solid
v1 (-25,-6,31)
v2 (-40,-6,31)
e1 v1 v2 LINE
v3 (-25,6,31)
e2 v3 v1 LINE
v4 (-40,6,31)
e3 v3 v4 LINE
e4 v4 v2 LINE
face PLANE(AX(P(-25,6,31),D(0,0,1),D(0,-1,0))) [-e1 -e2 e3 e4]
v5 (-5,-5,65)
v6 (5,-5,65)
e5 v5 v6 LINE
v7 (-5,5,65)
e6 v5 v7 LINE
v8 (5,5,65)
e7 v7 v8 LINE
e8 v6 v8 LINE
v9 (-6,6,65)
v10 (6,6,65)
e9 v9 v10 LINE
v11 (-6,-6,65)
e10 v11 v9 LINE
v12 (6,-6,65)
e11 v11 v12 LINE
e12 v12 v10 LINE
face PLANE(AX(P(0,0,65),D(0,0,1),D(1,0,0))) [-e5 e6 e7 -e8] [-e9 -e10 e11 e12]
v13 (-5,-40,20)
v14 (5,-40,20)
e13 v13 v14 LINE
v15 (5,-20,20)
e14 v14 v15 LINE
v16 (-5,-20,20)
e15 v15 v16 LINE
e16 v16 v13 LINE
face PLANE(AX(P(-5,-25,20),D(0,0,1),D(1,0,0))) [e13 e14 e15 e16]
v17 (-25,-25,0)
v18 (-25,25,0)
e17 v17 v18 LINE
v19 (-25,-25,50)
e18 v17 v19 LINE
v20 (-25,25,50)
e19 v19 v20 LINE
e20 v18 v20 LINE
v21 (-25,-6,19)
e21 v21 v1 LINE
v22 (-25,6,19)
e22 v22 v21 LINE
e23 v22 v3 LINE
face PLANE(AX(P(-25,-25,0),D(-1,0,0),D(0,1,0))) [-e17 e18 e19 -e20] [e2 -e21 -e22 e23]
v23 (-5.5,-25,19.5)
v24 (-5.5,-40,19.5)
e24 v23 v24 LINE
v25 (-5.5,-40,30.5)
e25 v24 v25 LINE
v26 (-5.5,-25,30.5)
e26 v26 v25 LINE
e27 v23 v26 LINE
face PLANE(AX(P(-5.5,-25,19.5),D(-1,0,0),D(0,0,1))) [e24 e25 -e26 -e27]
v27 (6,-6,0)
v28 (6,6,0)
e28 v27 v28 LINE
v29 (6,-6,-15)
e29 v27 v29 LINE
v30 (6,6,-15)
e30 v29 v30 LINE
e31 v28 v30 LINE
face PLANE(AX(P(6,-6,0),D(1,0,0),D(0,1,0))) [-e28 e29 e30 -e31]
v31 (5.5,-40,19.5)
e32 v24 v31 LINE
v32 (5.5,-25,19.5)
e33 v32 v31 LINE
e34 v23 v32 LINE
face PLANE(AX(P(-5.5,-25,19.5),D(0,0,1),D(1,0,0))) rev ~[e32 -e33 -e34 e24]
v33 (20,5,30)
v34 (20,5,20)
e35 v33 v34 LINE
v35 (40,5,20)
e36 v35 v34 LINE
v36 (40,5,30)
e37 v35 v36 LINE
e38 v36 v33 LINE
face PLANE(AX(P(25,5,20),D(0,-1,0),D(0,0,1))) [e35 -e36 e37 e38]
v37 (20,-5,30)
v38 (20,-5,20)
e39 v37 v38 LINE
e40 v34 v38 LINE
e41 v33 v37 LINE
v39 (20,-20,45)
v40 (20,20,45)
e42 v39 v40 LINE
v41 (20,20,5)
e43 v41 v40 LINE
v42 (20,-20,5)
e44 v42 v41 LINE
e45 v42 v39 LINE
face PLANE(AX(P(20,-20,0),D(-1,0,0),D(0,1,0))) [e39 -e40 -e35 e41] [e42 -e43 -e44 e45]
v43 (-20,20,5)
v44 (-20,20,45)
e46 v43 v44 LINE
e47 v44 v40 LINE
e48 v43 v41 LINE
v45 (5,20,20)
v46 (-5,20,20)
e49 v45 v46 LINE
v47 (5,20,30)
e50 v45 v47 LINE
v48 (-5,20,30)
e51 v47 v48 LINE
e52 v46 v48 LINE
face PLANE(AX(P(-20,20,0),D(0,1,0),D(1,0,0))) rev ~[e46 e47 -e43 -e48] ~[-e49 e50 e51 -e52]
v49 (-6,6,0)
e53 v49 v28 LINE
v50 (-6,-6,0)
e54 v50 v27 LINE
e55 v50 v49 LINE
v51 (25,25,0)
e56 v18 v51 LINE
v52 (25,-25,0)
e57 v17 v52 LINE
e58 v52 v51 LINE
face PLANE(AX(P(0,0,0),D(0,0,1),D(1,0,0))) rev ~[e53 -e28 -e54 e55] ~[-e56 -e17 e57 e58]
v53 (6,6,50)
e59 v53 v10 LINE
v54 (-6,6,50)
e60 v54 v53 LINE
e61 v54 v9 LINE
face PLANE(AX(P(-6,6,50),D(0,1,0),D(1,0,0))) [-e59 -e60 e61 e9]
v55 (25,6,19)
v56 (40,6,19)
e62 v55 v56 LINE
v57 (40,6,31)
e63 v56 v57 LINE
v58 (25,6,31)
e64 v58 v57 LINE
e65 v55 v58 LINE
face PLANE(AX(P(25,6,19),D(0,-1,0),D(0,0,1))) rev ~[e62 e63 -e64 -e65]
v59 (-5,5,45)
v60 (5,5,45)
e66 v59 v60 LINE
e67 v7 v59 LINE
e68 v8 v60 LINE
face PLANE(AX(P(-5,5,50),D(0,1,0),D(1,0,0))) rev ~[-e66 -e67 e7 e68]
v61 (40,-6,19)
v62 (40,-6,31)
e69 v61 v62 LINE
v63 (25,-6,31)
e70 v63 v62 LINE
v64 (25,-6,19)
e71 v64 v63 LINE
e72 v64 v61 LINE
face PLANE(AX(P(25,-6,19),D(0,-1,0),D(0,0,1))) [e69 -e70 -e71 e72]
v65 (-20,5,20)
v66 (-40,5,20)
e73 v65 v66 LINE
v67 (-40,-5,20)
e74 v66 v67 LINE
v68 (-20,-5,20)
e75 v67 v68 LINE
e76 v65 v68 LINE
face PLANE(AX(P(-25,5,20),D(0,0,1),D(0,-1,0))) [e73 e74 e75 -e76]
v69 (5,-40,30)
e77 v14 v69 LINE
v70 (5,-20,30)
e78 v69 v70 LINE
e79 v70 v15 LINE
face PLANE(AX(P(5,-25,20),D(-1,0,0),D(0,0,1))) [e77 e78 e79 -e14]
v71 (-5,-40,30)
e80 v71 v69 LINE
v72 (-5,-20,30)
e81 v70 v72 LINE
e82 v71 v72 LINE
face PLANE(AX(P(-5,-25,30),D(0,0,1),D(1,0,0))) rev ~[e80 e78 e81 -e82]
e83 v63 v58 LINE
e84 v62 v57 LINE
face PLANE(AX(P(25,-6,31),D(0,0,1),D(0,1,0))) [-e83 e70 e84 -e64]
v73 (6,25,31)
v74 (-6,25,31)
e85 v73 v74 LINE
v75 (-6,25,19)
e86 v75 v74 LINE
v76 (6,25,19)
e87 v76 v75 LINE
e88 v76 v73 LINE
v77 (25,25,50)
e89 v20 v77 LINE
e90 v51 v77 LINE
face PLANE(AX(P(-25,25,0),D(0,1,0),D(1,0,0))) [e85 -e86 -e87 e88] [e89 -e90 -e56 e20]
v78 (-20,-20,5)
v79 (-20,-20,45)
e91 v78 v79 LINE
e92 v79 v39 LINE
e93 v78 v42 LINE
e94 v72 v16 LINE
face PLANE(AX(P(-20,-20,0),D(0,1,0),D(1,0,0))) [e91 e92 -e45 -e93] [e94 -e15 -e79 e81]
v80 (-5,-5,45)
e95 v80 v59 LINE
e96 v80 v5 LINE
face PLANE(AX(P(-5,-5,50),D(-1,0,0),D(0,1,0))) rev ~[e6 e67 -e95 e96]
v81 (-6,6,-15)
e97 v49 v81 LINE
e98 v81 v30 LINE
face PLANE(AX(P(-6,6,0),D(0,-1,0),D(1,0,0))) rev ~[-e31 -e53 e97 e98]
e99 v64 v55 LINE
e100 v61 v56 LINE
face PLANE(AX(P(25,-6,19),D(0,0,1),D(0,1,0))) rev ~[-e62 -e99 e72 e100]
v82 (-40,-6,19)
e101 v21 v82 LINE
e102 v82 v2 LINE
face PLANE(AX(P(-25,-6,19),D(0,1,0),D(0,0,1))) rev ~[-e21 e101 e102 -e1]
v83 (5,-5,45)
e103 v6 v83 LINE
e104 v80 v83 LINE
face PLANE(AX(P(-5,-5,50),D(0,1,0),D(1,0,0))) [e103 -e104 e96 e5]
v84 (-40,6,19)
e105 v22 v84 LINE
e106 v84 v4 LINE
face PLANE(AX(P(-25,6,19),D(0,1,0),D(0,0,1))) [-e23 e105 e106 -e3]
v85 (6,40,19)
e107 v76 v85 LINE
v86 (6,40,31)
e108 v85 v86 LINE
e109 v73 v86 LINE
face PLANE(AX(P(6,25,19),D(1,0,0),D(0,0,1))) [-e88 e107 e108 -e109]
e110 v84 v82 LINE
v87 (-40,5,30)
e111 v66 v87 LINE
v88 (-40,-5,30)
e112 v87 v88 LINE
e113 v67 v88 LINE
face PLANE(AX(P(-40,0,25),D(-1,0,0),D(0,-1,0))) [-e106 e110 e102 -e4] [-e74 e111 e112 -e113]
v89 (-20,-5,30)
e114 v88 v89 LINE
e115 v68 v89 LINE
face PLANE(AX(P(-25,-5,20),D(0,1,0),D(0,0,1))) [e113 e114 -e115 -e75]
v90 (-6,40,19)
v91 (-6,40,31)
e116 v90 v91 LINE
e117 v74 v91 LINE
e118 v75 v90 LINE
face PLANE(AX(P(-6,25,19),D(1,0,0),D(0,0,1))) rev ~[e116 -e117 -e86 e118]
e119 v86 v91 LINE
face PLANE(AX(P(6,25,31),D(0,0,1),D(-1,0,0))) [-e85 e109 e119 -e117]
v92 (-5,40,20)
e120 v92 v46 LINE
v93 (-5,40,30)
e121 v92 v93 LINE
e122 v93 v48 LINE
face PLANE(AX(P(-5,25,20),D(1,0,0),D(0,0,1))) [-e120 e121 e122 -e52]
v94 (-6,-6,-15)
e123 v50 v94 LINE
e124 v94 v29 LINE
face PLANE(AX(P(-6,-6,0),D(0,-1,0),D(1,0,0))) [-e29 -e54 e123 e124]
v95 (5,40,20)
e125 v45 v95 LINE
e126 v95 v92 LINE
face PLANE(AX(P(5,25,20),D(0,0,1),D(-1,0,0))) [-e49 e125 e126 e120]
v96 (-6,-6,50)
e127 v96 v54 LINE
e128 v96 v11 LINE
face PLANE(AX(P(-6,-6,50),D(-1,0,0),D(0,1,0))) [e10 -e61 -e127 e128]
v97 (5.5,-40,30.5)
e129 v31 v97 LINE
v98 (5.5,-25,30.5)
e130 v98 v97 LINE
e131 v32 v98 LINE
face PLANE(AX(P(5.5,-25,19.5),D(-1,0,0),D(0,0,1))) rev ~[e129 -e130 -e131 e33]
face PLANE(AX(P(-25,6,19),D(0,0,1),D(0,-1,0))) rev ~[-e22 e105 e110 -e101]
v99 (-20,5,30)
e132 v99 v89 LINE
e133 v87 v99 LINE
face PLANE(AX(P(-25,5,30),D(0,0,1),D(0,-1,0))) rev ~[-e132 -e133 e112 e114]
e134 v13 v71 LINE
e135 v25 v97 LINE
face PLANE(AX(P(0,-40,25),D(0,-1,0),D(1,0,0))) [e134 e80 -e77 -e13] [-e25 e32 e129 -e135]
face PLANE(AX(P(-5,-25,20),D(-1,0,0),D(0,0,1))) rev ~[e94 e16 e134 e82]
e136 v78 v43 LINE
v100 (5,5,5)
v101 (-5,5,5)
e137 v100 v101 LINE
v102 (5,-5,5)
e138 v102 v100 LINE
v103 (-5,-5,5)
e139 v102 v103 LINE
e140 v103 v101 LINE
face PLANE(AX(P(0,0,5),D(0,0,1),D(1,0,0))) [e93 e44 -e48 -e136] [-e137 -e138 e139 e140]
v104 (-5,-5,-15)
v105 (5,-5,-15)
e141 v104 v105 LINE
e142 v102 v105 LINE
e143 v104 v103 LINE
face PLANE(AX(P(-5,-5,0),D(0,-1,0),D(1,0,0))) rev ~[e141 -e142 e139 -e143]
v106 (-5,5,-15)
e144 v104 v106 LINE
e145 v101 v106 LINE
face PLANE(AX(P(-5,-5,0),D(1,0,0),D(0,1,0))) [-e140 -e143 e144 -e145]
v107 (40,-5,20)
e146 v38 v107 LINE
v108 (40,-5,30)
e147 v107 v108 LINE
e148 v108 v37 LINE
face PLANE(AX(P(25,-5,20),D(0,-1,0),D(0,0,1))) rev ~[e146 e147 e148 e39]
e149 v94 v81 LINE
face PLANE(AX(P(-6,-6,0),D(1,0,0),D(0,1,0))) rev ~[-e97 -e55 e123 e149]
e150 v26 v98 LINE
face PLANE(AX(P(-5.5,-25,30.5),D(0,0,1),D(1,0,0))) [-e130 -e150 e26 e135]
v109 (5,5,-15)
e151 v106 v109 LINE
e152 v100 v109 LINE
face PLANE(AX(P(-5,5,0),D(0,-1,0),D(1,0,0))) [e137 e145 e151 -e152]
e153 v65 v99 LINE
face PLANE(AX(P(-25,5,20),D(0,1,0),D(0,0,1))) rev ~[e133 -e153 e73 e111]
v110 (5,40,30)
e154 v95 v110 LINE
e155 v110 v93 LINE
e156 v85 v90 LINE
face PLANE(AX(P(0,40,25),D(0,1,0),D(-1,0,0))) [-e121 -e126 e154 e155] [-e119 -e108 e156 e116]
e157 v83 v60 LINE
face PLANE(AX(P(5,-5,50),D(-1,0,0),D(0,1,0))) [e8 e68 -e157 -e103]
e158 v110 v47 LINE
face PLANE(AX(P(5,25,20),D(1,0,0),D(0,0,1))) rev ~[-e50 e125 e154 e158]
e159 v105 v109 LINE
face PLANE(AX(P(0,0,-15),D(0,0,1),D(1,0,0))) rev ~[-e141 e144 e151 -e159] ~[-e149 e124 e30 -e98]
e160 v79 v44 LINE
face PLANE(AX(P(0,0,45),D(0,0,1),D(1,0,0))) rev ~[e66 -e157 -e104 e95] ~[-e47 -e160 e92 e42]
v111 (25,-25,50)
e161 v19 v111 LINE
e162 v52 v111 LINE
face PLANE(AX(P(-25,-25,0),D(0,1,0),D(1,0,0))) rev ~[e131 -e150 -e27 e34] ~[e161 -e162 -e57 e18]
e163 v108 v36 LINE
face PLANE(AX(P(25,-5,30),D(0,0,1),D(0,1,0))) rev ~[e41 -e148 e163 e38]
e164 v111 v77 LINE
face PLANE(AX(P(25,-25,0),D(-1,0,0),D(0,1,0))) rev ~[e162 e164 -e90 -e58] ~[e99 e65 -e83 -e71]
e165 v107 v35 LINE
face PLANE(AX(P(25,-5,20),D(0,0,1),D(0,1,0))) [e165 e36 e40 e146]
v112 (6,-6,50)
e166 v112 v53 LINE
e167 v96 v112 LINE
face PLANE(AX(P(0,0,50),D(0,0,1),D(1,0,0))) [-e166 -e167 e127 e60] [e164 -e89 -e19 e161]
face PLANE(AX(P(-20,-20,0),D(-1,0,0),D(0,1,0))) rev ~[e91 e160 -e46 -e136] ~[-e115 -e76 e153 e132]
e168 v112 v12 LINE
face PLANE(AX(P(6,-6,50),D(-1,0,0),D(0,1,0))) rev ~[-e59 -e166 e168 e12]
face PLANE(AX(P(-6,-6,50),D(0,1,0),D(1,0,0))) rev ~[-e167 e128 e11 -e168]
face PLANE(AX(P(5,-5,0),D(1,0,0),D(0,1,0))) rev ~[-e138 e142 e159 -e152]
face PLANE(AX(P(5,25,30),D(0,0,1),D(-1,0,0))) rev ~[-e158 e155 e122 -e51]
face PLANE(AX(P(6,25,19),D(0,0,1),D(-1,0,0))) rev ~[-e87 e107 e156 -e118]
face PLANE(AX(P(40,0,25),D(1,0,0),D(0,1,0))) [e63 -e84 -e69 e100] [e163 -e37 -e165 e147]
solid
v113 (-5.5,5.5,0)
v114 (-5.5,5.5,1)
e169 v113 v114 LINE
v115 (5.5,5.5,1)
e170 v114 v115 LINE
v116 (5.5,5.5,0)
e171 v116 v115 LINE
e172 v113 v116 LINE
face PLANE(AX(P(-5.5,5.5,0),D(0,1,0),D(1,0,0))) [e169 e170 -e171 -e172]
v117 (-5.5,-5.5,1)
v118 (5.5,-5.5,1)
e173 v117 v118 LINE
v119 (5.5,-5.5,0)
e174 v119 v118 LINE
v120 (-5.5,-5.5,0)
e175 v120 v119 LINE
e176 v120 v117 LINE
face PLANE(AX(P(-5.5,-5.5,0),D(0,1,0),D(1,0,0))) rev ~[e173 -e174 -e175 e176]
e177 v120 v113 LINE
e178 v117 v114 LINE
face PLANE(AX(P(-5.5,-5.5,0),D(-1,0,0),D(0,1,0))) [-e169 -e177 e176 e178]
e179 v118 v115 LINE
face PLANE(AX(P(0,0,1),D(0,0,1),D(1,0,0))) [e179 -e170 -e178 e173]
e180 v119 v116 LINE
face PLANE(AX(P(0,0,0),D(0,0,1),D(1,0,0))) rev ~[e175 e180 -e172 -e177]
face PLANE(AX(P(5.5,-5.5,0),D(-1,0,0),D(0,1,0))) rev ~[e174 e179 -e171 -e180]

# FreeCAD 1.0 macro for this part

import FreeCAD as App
import Part
import Sketcher

V = App.Vector

doc = App.newDocument("Part")
body = doc.addObject("PartDesign::Body", "Body")

sketch1 = body.newObject("Sketcher::SketchObject", "Sketch")
sketch1.AttachmentSupport = (doc.getObject("XY_Plane"), [""])
sketch1.MapMode = "FlatFace"
sketch1.addGeometry(Part.LineSegment(V(-25, 25, 0), V(-25, -25, 0)), False)
sketch1.addGeometry(Part.LineSegment(V(-25, -25, 0), V(25, -25, 0)), False)
sketch1.addGeometry(Part.LineSegment(V(25, -25, 0), V(25, 25, 0)), False)
sketch1.addGeometry(Part.LineSegment(V(25, 25, 0), V(-25, 25, 0)), False)
sketch1.addGeometry(Part.LineSegment(V(20, -20, 0), V(-20, -20, 0)), False)
sketch1.addGeometry(Part.LineSegment(V(-20, -20, 0), V(-20, 20, 0)), False)
sketch1.addGeometry(Part.LineSegment(V(-20, 20, 0), V(20, 20, 0)), False)
sketch1.addGeometry(Part.LineSegment(V(20, 20, 0), V(20, -20, 0)), False)
sketch1.addConstraint(Sketcher.Constraint("Coincident", 0, 2, 1, 1))
sketch1.addConstraint(Sketcher.Constraint("Coincident", 1, 2, 2, 1))
sketch1.addConstraint(Sketcher.Constraint("Coincident", 2, 2, 3, 1))
sketch1.addConstraint(Sketcher.Constraint("Coincident", 3, 2, 0, 1))
sketch1.addConstraint(Sketcher.Constraint("Coincident", 4, 2, 5, 1))
sketch1.addConstraint(Sketcher.Constraint("Coincident", 5, 2, 6, 1))
sketch1.addConstraint(Sketcher.Constraint("Coincident", 6, 2, 7, 1))
sketch1.addConstraint(Sketcher.Constraint("Coincident", 7, 2, 4, 1))
sketch1.addConstraint(Sketcher.Constraint("Vertical", 0))
sketch1.addConstraint(Sketcher.Constraint("Horizontal", 1))
sketch1.addConstraint(Sketcher.Constraint("Vertical", 2))
sketch1.addConstraint(Sketcher.Constraint("Horizontal", 3))
sketch1.addConstraint(Sketcher.Constraint("Horizontal", 4))
sketch1.addConstraint(Sketcher.Constraint("Vertical", 5))
sketch1.addConstraint(Sketcher.Constraint("Horizontal", 6))
sketch1.addConstraint(Sketcher.Constraint("Vertical", 7))
sketch1.addConstraint(Sketcher.Constraint("Symmetric", 0, 2, 2, 2, -1, 1))
sketch1.addConstraint(Sketcher.Constraint("Symmetric", 4, 2, 6, 2, -1, 1))
sketch1.addConstraint(Sketcher.Constraint("Equal", 3, 0))
sketch1.addConstraint(Sketcher.Constraint("Equal", 6, 5))
sketch1.addConstraint(Sketcher.Constraint("DistanceX", 1, 1, 1, 2, 50.0))
sketch1.addConstraint(Sketcher.Constraint("DistanceX", 4, 2, 4, 1, 40.0))
pad1 = body.newObject("PartDesign::Pad", "Pad")
pad1.Profile = sketch1
pad1.Length = 50

sketch2 = body.newObject("Sketcher::SketchObject", "Sketch001")
sketch2.AttachmentSupport = (doc.getObject("XY_Plane"), [""])
sketch2.MapMode = "FlatFace"
sketch2.addGeometry(Part.LineSegment(V(-20, 20, 0), V(-20, -20, 0)), False)
sketch2.addGeometry(Part.LineSegment(V(-20, -20, 0), V(20, -20, 0)), False)
sketch2.addGeometry(Part.LineSegment(V(20, -20, 0), V(20, 20, 0)), False)
sketch2.addGeometry(Part.LineSegment(V(20, 20, 0), V(-20, 20, 0)), False)
sketch2.addConstraint(Sketcher.Constraint("Coincident", 0, 2, 1, 1))
sketch2.addConstraint(Sketcher.Constraint("Coincident", 1, 2, 2, 1))
sketch2.addConstraint(Sketcher.Constraint("Coincident", 2, 2, 3, 1))
sketch2.addConstraint(Sketcher.Constraint("Coincident", 3, 2, 0, 1))
sketch2.addConstraint(Sketcher.Constraint("Vertical", 0))
sketch2.addConstraint(Sketcher.Constraint("Horizontal", 1))
sketch2.addConstraint(Sketcher.Constraint("Vertical", 2))
sketch2.addConstraint(Sketcher.Constraint("Horizontal", 3))
sketch2.addConstraint(Sketcher.Constraint("Symmetric", 0, 2, 2, 2, -1, 1))
sketch2.addConstraint(Sketcher.Constraint("Equal", 3, 0))
sketch2.addConstraint(Sketcher.Constraint("DistanceX", 1, 1, 1, 2, 40.0))
pad2 = body.newObject("PartDesign::Pad", "Pad001")
pad2.Profile = sketch2
pad2.Length = 5

sketch3 = body.newObject("Sketcher::SketchObject", "Sketch002")
sketch3.AttachmentSupport = (doc.getObject("XY_Plane"), [""])
sketch3.MapMode = "FlatFace"
sketch3.AttachmentOffset = App.Placement(V(0, 0, 50), App.Rotation())
sketch3.addGeometry(Part.LineSegment(V(-20, 20, 0), V(-20, -20, 0)), False)
sketch3.addGeometry(Part.LineSegment(V(-20, -20, 0), V(20, -20, 0)), False)
sketch3.addGeometry(Part.LineSegment(V(20, -20, 0), V(20, 20, 0)), False)
sketch3.addGeometry(Part.LineSegment(V(20, 20, 0), V(-20, 20, 0)), False)
sketch3.addConstraint(Sketcher.Constraint("Coincident", 0, 2, 1, 1))
sketch3.addConstraint(Sketcher.Constraint("Coincident", 1, 2, 2, 1))
sketch3.addConstraint(Sketcher.Constraint("Coincident", 2, 2, 3, 1))
sketch3.addConstraint(Sketcher.Constraint("Coincident", 3, 2, 0, 1))
sketch3.addConstraint(Sketcher.Constraint("Vertical", 0))
sketch3.addConstraint(Sketcher.Constraint("Horizontal", 1))
sketch3.addConstraint(Sketcher.Constraint("Vertical", 2))
sketch3.addConstraint(Sketcher.Constraint("Horizontal", 3))
sketch3.addConstraint(Sketcher.Constraint("Symmetric", 0, 2, 2, 2, -1, 1))
sketch3.addConstraint(Sketcher.Constraint("Equal", 3, 0))
sketch3.addConstraint(Sketcher.Constraint("DistanceX", 1, 1, 1, 2, 40.0))
pad3 = body.newObject("PartDesign::Pad", "Pad002")
pad3.Profile = sketch3
pad3.Length = 5
pad3.Reversed = True

sketch4 = body.newObject("Sketcher::SketchObject", "Sketch003")
sketch4.AttachmentSupport = (doc.getObject("XY_Plane"), [""])
sketch4.MapMode = "FlatFace"
sketch4.AttachmentOffset = App.Placement(V(0, 0, 50), App.Rotation())
sketch4.addGeometry(Part.LineSegment(V(-5, 5, 0), V(-5, -5, 0)), False)
sketch4.addGeometry(Part.LineSegment(V(-5, -5, 0), V(5, -5, 0)), False)
sketch4.addGeometry(Part.LineSegment(V(5, -5, 0), V(5, 5, 0)), False)
sketch4.addGeometry(Part.LineSegment(V(5, 5, 0), V(-5, 5, 0)), False)
sketch4.addConstraint(Sketcher.Constraint("Coincident", 0, 2, 1, 1))
sketch4.addConstraint(Sketcher.Constraint("Coincident", 1, 2, 2, 1))
sketch4.addConstraint(Sketcher.Constraint("Coincident", 2, 2, 3, 1))
sketch4.addConstraint(Sketcher.Constraint("Coincident", 3, 2, 0, 1))
sketch4.addConstraint(Sketcher.Constraint("Vertical", 0))
sketch4.addConstraint(Sketcher.Constraint("Horizontal", 1))
sketch4.addConstraint(Sketcher.Constraint("Vertical", 2))
sketch4.addConstraint(Sketcher.Constraint("Horizontal", 3))
sketch4.addConstraint(Sketcher.Constraint("Symmetric", 0, 2, 2, 2, -1, 1))
sketch4.addConstraint(Sketcher.Constraint("Equal", 3, 0))
sketch4.addConstraint(Sketcher.Constraint("DistanceX", 1, 1, 1, 2, 10.0))
pocket1 = body.newObject("PartDesign::Pocket", "Pocket")
pocket1.Profile = sketch4
pocket1.Length = 10

sketch5 = body.newObject("Sketcher::SketchObject", "Sketch004")
sketch5.AttachmentSupport = (doc.getObject("XZ_Plane"), [""])
sketch5.MapMode = "FlatFace"
sketch5.AttachmentOffset = App.Placement(V(0, 0, 25), App.Rotation())
sketch5.addGeometry(Part.LineSegment(V(-5, 30, 0), V(-5, 20, 0)), False)
sketch5.addGeometry(Part.LineSegment(V(-5, 20, 0), V(5, 20, 0)), False)
sketch5.addGeometry(Part.LineSegment(V(5, 20, 0), V(5, 30, 0)), False)
sketch5.addGeometry(Part.LineSegment(V(5, 30, 0), V(-5, 30, 0)), False)
sketch5.addConstraint(Sketcher.Constraint("Coincident", 0, 2, 1, 1))
sketch5.addConstraint(Sketcher.Constraint("Coincident", 1, 2, 2, 1))
sketch5.addConstraint(Sketcher.Constraint("Coincident", 2, 2, 3, 1))
sketch5.addConstraint(Sketcher.Constraint("Coincident", 3, 2, 0, 1))
sketch5.addConstraint(Sketcher.Constraint("Vertical", 0))
sketch5.addConstraint(Sketcher.Constraint("Horizontal", 1))
sketch5.addConstraint(Sketcher.Constraint("Vertical", 2))
sketch5.addConstraint(Sketcher.Constraint("Horizontal", 3))
sketch5.addConstraint(Sketcher.Constraint("Equal", 3, 0))
sketch5.addConstraint(Sketcher.Constraint("DistanceX", 1, 1, 1, 2, 10.0))
sketch5.addConstraint(Sketcher.Constraint("DistanceX", 0, 2, -1, 1, 5.0))
sketch5.addConstraint(Sketcher.Constraint("DistanceY", -1, 1, 0, 2, 20.0))
pocket2 = body.newObject("PartDesign::Pocket", "Pocket001")
pocket2.Profile = sketch5
pocket2.Length = 10

sketch6 = body.newObject("Sketcher::SketchObject", "Sketch005")
sketch6.AttachmentSupport = (doc.getObject("XY_Plane"), [""])
sketch6.MapMode = "FlatFace"
sketch6.addGeometry(Part.LineSegment(V(-5, -5, 0), V(-5, 5, 0)), False)
sketch6.addGeometry(Part.LineSegment(V(-5, 5, 0), V(5, 5, 0)), False)
sketch6.addGeometry(Part.LineSegment(V(5, 5, 0), V(5, -5, 0)), False)
sketch6.addGeometry(Part.LineSegment(V(5, -5, 0), V(-5, -5, 0)), False)
sketch6.addConstraint(Sketcher.Constraint("Coincident", 0, 2, 1, 1))
sketch6.addConstraint(Sketcher.Constraint("Coincident", 1, 2, 2, 1))
sketch6.addConstraint(Sketcher.Constraint("Coincident", 2, 2, 3, 1))
sketch6.addConstraint(Sketcher.Constraint("Coincident", 3, 2, 0, 1))
sketch6.addConstraint(Sketcher.Constraint("Vertical", 0))
sketch6.addConstraint(Sketcher.Constraint("Horizontal", 1))
sketch6.addConstraint(Sketcher.Constraint("Vertical", 2))
sketch6.addConstraint(Sketcher.Constraint("Horizontal", 3))
sketch6.addConstraint(Sketcher.Constraint("Symmetric", 0, 2, 2, 2, -1, 1))
sketch6.addConstraint(Sketcher.Constraint("Equal", 3, 0))
sketch6.addConstraint(Sketcher.Constraint("DistanceX", 1, 1, 1, 2, 10.0))
pocket3 = body.newObject("PartDesign::Pocket", "Pocket002")
pocket3.Profile = sketch6
pocket3.Length = 10
pocket3.Reversed = True

sketch7 = body.newObject("Sketcher::SketchObject", "Sketch006")
sketch7.AttachmentSupport = (doc.getObject("XZ_Plane"), [""])
sketch7.MapMode = "FlatFace"
sketch7.AttachmentOffset = App.Placement(V(0, 0, -25), App.Rotation())
sketch7.addGeometry(Part.LineSegment(V(5, 30, 0), V(5, 20, 0)), False)
sketch7.addGeometry(Part.LineSegment(V(5, 20, 0), V(-5, 20, 0)), False)
sketch7.addGeometry(Part.LineSegment(V(-5, 20, 0), V(-5, 30, 0)), False)
sketch7.addGeometry(Part.LineSegment(V(-5, 30, 0), V(5, 30, 0)), False)
sketch7.addConstraint(Sketcher.Constraint("Coincident", 0, 2, 1, 1))
sketch7.addConstraint(Sketcher.Constraint("Coincident", 1, 2, 2, 1))
sketch7.addConstraint(Sketcher.Constraint("Coincident", 2, 2, 3, 1))
sketch7.addConstraint(Sketcher.Constraint("Coincident", 3, 2, 0, 1))
sketch7.addConstraint(Sketcher.Constraint("Vertical", 0))
sketch7.addConstraint(Sketcher.Constraint("Horizontal", 1))
sketch7.addConstraint(Sketcher.Constraint("Vertical", 2))
sketch7.addConstraint(Sketcher.Constraint("Horizontal", 3))
sketch7.addConstraint(Sketcher.Constraint("Equal", 3, 0))
sketch7.addConstraint(Sketcher.Constraint("DistanceX", 1, 2, 1, 1, 10.0))
sketch7.addConstraint(Sketcher.Constraint("DistanceX", -1, 1, 0, 2, 5.0))
sketch7.addConstraint(Sketcher.Constraint("DistanceY", -1, 1, 0, 2, 20.0))
pocket4 = body.newObject("PartDesign::Pocket", "Pocket003")
pocket4.Profile = sketch7
pocket4.Length = 10
pocket4.Reversed = True

sketch8 = body.newObject("Sketcher::SketchObject", "Sketch007")
sketch8.AttachmentSupport = (doc.getObject("YZ_Plane"), [""])
sketch8.MapMode = "FlatFace"
sketch8.AttachmentOffset = App.Placement(V(0, 0, -25), App.Rotation())
sketch8.addGeometry(Part.LineSegment(V(5, 30, 0), V(5, 20, 0)), False)
sketch8.addGeometry(Part.LineSegment(V(5, 20, 0), V(-5, 20, 0)), False)
sketch8.addGeometry(Part.LineSegment(V(-5, 20, 0), V(-5, 30, 0)), False)
sketch8.addGeometry(Part.LineSegment(V(-5, 30, 0), V(5, 30, 0)), False)
sketch8.addConstraint(Sketcher.Constraint("Coincident", 0, 2, 1, 1))
sketch8.addConstraint(Sketcher.Constraint("Coincident", 1, 2, 2, 1))
sketch8.addConstraint(Sketcher.Constraint("Coincident", 2, 2, 3, 1))
sketch8.addConstraint(Sketcher.Constraint("Coincident", 3, 2, 0, 1))
sketch8.addConstraint(Sketcher.Constraint("Vertical", 0))
sketch8.addConstraint(Sketcher.Constraint("Horizontal", 1))
sketch8.addConstraint(Sketcher.Constraint("Vertical", 2))
sketch8.addConstraint(Sketcher.Constraint("Horizontal", 3))
sketch8.addConstraint(Sketcher.Constraint("Equal", 3, 0))
sketch8.addConstraint(Sketcher.Constraint("DistanceX", 1, 2, 1, 1, 10.0))
sketch8.addConstraint(Sketcher.Constraint("DistanceX", -1, 1, 0, 2, 5.0))
sketch8.addConstraint(Sketcher.Constraint("DistanceY", -1, 1, 0, 2, 20.0))
pocket5 = body.newObject("PartDesign::Pocket", "Pocket004")
pocket5.Profile = sketch8
pocket5.Length = 10
pocket5.Reversed = True

sketch9 = body.newObject("Sketcher::SketchObject", "Sketch008")
sketch9.AttachmentSupport = (doc.getObject("YZ_Plane"), [""])
sketch9.MapMode = "FlatFace"
sketch9.AttachmentOffset = App.Placement(V(0, 0, 25), App.Rotation())
sketch9.addGeometry(Part.LineSegment(V(-5, 30, 0), V(-5, 20, 0)), False)
sketch9.addGeometry(Part.LineSegment(V(-5, 20, 0), V(5, 20, 0)), False)
sketch9.addGeometry(Part.LineSegment(V(5, 20, 0), V(5, 30, 0)), False)
sketch9.addGeometry(Part.LineSegment(V(5, 30, 0), V(-5, 30, 0)), False)
sketch9.addConstraint(Sketcher.Constraint("Coincident", 0, 2, 1, 1))
sketch9.addConstraint(Sketcher.Constraint("Coincident", 1, 2, 2, 1))
sketch9.addConstraint(Sketcher.Constraint("Coincident", 2, 2, 3, 1))
sketch9.addConstraint(Sketcher.Constraint("Coincident", 3, 2, 0, 1))
sketch9.addConstraint(Sketcher.Constraint("Vertical", 0))
sketch9.addConstraint(Sketcher.Constraint("Horizontal", 1))
sketch9.addConstraint(Sketcher.Constraint("Vertical", 2))
sketch9.addConstraint(Sketcher.Constraint("Horizontal", 3))
sketch9.addConstraint(Sketcher.Constraint("Equal", 3, 0))
sketch9.addConstraint(Sketcher.Constraint("DistanceX", 1, 1, 1, 2, 10.0))
sketch9.addConstraint(Sketcher.Constraint("DistanceX", 0, 2, -1, 1, 5.0))
sketch9.addConstraint(Sketcher.Constraint("DistanceY", -1, 1, 0, 2, 20.0))
pocket6 = body.newObject("PartDesign::Pocket", "Pocket005")
pocket6.Profile = sketch9
pocket6.Length = 10

sketch10 = body.newObject("Sketcher::SketchObject", "Sketch009")
sketch10.AttachmentSupport = (doc.getObject("XZ_Plane"), [""])
sketch10.MapMode = "FlatFace"
sketch10.AttachmentOffset = App.Placement(V(0, 0, 25), App.Rotation())
sketch10.addGeometry(Part.LineSegment(V(-6, 30, 0), V(-6, 20, 0)), False)
sketch10.addGeometry(Part.LineSegment(V(-6, 20, 0), V(6, 20, 0)), False)
sketch10.addGeometry(Part.LineSegment(V(6, 20, 0), V(6, 30, 0)), False)
sketch10.addGeometry(Part.LineSegment(V(6, 30, 0), V(-6, 30, 0)), False)
sketch10.addGeometry(Part.LineSegment(V(5, 20, 0), V(-5, 20, 0)), False)
sketch10.addGeometry(Part.LineSegment(V(-5, 20, 0), V(-5, 30, 0)), False)
sketch10.addGeometry(Part.LineSegment(V(-5, 30, 0), V(5, 30, 0)), False)
sketch10.addGeometry(Part.LineSegment(V(5, 30, 0), V(5, 20, 0)), False)
sketch10.addConstraint(Sketcher.Constraint("Coincident", 0, 2, 1, 1))
sketch10.addConstraint(Sketcher.Constraint("Coincident", 1, 2, 2, 1))
sketch10.addConstraint(Sketcher.Constraint("Coincident", 2, 2, 3, 1))
sketch10.addConstraint(Sketcher.Constraint("Coincident", 3, 2, 0, 1))
sketch10.addConstraint(Sketcher.Constraint("Coincident", 4, 2, 5, 1))
sketch10.addConstraint(Sketcher.Constraint("Coincident", 5, 2, 6, 1))
sketch10.addConstraint(Sketcher.Constraint("Coincident", 6, 2, 7, 1))
sketch10.addConstraint(Sketcher.Constraint("Coincident", 7, 2, 4, 1))
sketch10.addConstraint(Sketcher.Constraint("Vertical", 0))
sketch10.addConstraint(Sketcher.Constraint("Horizontal", 1))
sketch10.addConstraint(Sketcher.Constraint("Vertical", 2))
sketch10.addConstraint(Sketcher.Constraint("Horizontal", 3))
sketch10.addConstraint(Sketcher.Constraint("Horizontal", 4))
sketch10.addConstraint(Sketcher.Constraint("Vertical", 5))
sketch10.addConstraint(Sketcher.Constraint("Horizontal", 6))
sketch10.addConstraint(Sketcher.Constraint("Vertical", 7))
sketch10.addConstraint(Sketcher.Constraint("Equal", 3, 0))
sketch10.addConstraint(Sketcher.Constraint("Equal", 6, 5))
sketch10.addConstraint(Sketcher.Constraint("DistanceX", 1, 1, 1, 2, 11.0))
sketch10.addConstraint(Sketcher.Constraint("DistanceX", 4, 2, 4, 1, 10.0))
sketch10.addConstraint(Sketcher.Constraint("DistanceX", 4, 2, -1, 1, 5.0))
sketch10.addConstraint(Sketcher.Constraint("DistanceY", -1, 1, 4, 2, 20.0))
sketch10.addConstraint(Sketcher.Constraint("DistanceX", 0, 2, -1, 1, 5.5))
sketch10.addConstraint(Sketcher.Constraint("DistanceY", -1, 1, 0, 2, 19.5))
pad4 = body.newObject("PartDesign::Pad", "Pad003")
pad4.Profile = sketch10
pad4.Length = 15

sketch11 = body.newObject("Sketcher::SketchObject", "Sketch010")
sketch11.AttachmentSupport = (doc.getObject("XY_Plane"), [""])
sketch11.MapMode = "FlatFace"
sketch11.AttachmentOffset = App.Placement(V(0, 0, 50), App.Rotation())
sketch11.addGeometry(Part.LineSegment(V(-6, 6, 0), V(-6, -6, 0)), False)
sketch11.addGeometry(Part.LineSegment(V(-6, -6, 0), V(6, -6, 0)), False)
sketch11.addGeometry(Part.LineSegment(V(6, -6, 0), V(6, 6, 0)), False)
sketch11.addGeometry(Part.LineSegment(V(6, 6, 0), V(-6, 6, 0)), False)
sketch11.addGeometry(Part.LineSegment(V(5, -5, 0), V(-5, -5, 0)), False)
sketch11.addGeometry(Part.LineSegment(V(-5, -5, 0), V(-5, 5, 0)), False)
sketch11.addGeometry(Part.LineSegment(V(-5, 5, 0), V(5, 5, 0)), False)
sketch11.addGeometry(Part.LineSegment(V(5, 5, 0), V(5, -5, 0)), False)
sketch11.addConstraint(Sketcher.Constraint("Coincident", 0, 2, 1, 1))
sketch11.addConstraint(Sketcher.Constraint("Coincident", 1, 2, 2, 1))
sketch11.addConstraint(Sketcher.Constraint("Coincident", 2, 2, 3, 1))
sketch11.addConstraint(Sketcher.Constraint("Coincident", 3, 2, 0, 1))
sketch11.addConstraint(Sketcher.Constraint("Coincident", 4, 2, 5, 1))
sketch11.addConstraint(Sketcher.Constraint("Coincident", 5, 2, 6, 1))
sketch11.addConstraint(Sketcher.Constraint("Coincident", 6, 2, 7, 1))
sketch11.addConstraint(Sketcher.Constraint("Coincident", 7, 2, 4, 1))
sketch11.addConstraint(Sketcher.Constraint("Vertical", 0))
sketch11.addConstraint(Sketcher.Constraint("Horizontal", 1))
sketch11.addConstraint(Sketcher.Constraint("Vertical", 2))
sketch11.addConstraint(Sketcher.Constraint("Horizontal", 3))
sketch11.addConstraint(Sketcher.Constraint("Horizontal", 4))
sketch11.addConstraint(Sketcher.Constraint("Vertical", 5))
sketch11.addConstraint(Sketcher.Constraint("Horizontal", 6))
sketch11.addConstraint(Sketcher.Constraint("Vertical", 7))
sketch11.addConstraint(Sketcher.Constraint("Symmetric", 0, 2, 2, 2, -1, 1))
sketch11.addConstraint(Sketcher.Constraint("Symmetric", 4, 2, 6, 2, -1, 1))
sketch11.addConstraint(Sketcher.Constraint("Equal", 3, 0))
sketch11.addConstraint(Sketcher.Constraint("Equal", 6, 5))
sketch11.addConstraint(Sketcher.Constraint("DistanceX", 1, 1, 1, 2, 12.0))
sketch11.addConstraint(Sketcher.Constraint("DistanceX", 4, 2, 4, 1, 10.0))
pad5 = body.newObject("PartDesign::Pad", "Pad004")
pad5.Profile = sketch11
pad5.Length = 15

sketch12 = body.newObject("Sketcher::SketchObject", "Sketch011")
sketch12.AttachmentSupport = (doc.getObject("XZ_Plane"), [""])
sketch12.MapMode = "FlatFace"
sketch12.AttachmentOffset = App.Placement(V(0, 0, -25), App.Rotation())
sketch12.addGeometry(Part.LineSegment(V(6, 31, 0), V(6, 19, 0)), False)
sketch12.addGeometry(Part.LineSegment(V(6, 19, 0), V(-6, 19, 0)), False)
sketch12.addGeometry(Part.LineSegment(V(-6, 19, 0), V(-6, 31, 0)), False)
sketch12.addGeometry(Part.LineSegment(V(-6, 31, 0), V(6, 31, 0)), False)
sketch12.addGeometry(Part.LineSegment(V(-5, 20, 0), V(5, 20, 0)), False)
sketch12.addGeometry(Part.LineSegment(V(5, 20, 0), V(5, 30, 0)), False)
sketch12.addGeometry(Part.LineSegment(V(5, 30, 0), V(-5, 30, 0)), False)
sketch12.addGeometry(Part.LineSegment(V(-5, 30, 0), V(-5, 20, 0)), False)
sketch12.addConstraint(Sketcher.Constraint("Coincident", 0, 2, 1, 1))
sketch12.addConstraint(Sketcher.Constraint("Coincident", 1, 2, 2, 1))
sketch12.addConstraint(Sketcher.Constraint("Coincident", 2, 2, 3, 1))
sketch12.addConstraint(Sketcher.Constraint("Coincident", 3, 2, 0, 1))
sketch12.addConstraint(Sketcher.Constraint("Coincident", 4, 2, 5, 1))
sketch12.addConstraint(Sketcher.Constraint("Coincident", 5, 2, 6, 1))
sketch12.addConstraint(Sketcher.Constraint("Coincident", 6, 2, 7, 1))
sketch12.addConstraint(Sketcher.Constraint("Coincident", 7, 2, 4, 1))
sketch12.addConstraint(Sketcher.Constraint("Vertical", 0))
sketch12.addConstraint(Sketcher.Constraint("Horizontal", 1))
sketch12.addConstraint(Sketcher.Constraint("Vertical", 2))
sketch12.addConstraint(Sketcher.Constraint("Horizontal", 3))
sketch12.addConstraint(Sketcher.Constraint("Horizontal", 4))
sketch12.addConstraint(Sketcher.Constraint("Vertical", 5))
sketch12.addConstraint(Sketcher.Constraint("Horizontal", 6))
sketch12.addConstraint(Sketcher.Constraint("Vertical", 7))
sketch12.addConstraint(Sketcher.Constraint("Equal", 3, 0))
sketch12.addConstraint(Sketcher.Constraint("Equal", 6, 5))
sketch12.addConstraint(Sketcher.Constraint("DistanceX", 1, 2, 1, 1, 12.0))
sketch12.addConstraint(Sketcher.Constraint("DistanceX", 4, 1, 4, 2, 10.0))
sketch12.addConstraint(Sketcher.Constraint("DistanceX", -1, 1, 0, 2, 6.0))
sketch12.addConstraint(Sketcher.Constraint("DistanceY", -1, 1, 0, 2, 19.0))
sketch12.addConstraint(Sketcher.Constraint("DistanceX", -1, 1, 4, 2, 5.0))
sketch12.addConstraint(Sketcher.Constraint("DistanceY", -1, 1, 4, 2, 20.0))
pad6 = body.newObject("PartDesign::Pad", "Pad005")
pad6.Profile = sketch12
pad6.Length = 15
pad6.Reversed = True

sketch13 = body.newObject("Sketcher::SketchObject", "Sketch012")
sketch13.AttachmentSupport = (doc.getObject("XY_Plane"), [""])
sketch13.MapMode = "FlatFace"
sketch13.addGeometry(Part.LineSegment(V(-6, 6, 0), V(-6, -6, 0)), False)
sketch13.addGeometry(Part.LineSegment(V(-6, -6, 0), V(6, -6, 0)), False)
sketch13.addGeometry(Part.LineSegment(V(6, -6, 0), V(6, 6, 0)), False)
sketch13.addGeometry(Part.LineSegment(V(6, 6, 0), V(-6, 6, 0)), False)
sketch13.addGeometry(Part.LineSegment(V(5, -5, 0), V(-5, -5, 0)), False)
sketch13.addGeometry(Part.LineSegment(V(-5, -5, 0), V(-5, 5, 0)), False)
sketch13.addGeometry(Part.LineSegment(V(-5, 5, 0), V(5, 5, 0)), False)
sketch13.addGeometry(Part.LineSegment(V(5, 5, 0), V(5, -5, 0)), False)
sketch13.addConstraint(Sketcher.Constraint("Coincident", 0, 2, 1, 1))
sketch13.addConstraint(Sketcher.Constraint("Coincident", 1, 2, 2, 1))
sketch13.addConstraint(Sketcher.Constraint("Coincident", 2, 2, 3, 1))
sketch13.addConstraint(Sketcher.Constraint("Coincident", 3, 2, 0, 1))
sketch13.addConstraint(Sketcher.Constraint("Coincident", 4, 2, 5, 1))
sketch13.addConstraint(Sketcher.Constraint("Coincident", 5, 2, 6, 1))
sketch13.addConstraint(Sketcher.Constraint("Coincident", 6, 2, 7, 1))
sketch13.addConstraint(Sketcher.Constraint("Coincident", 7, 2, 4, 1))
sketch13.addConstraint(Sketcher.Constraint("Vertical", 0))
sketch13.addConstraint(Sketcher.Constraint("Horizontal", 1))
sketch13.addConstraint(Sketcher.Constraint("Vertical", 2))
sketch13.addConstraint(Sketcher.Constraint("Horizontal", 3))
sketch13.addConstraint(Sketcher.Constraint("Horizontal", 4))
sketch13.addConstraint(Sketcher.Constraint("Vertical", 5))
sketch13.addConstraint(Sketcher.Constraint("Horizontal", 6))
sketch13.addConstraint(Sketcher.Constraint("Vertical", 7))
sketch13.addConstraint(Sketcher.Constraint("Symmetric", 0, 2, 2, 2, -1, 1))
sketch13.addConstraint(Sketcher.Constraint("Symmetric", 4, 2, 6, 2, -1, 1))
sketch13.addConstraint(Sketcher.Constraint("Equal", 3, 0))
sketch13.addConstraint(Sketcher.Constraint("Equal", 6, 5))
sketch13.addConstraint(Sketcher.Constraint("DistanceX", 1, 1, 1, 2, 12.0))
sketch13.addConstraint(Sketcher.Constraint("DistanceX", 4, 2, 4, 1, 10.0))
pad7 = body.newObject("PartDesign::Pad", "Pad006")
pad7.Profile = sketch13
pad7.Length = 15
pad7.Reversed = True

sketch14 = body.newObject("Sketcher::SketchObject", "Sketch013")
sketch14.AttachmentSupport = (doc.getObject("YZ_Plane"), [""])
sketch14.MapMode = "FlatFace"
sketch14.AttachmentOffset = App.Placement(V(0, 0, 25), App.Rotation())
sketch14.addGeometry(Part.LineSegment(V(-6, 31, 0), V(-6, 19, 0)), False)
sketch14.addGeometry(Part.LineSegment(V(-6, 19, 0), V(6, 19, 0)), False)
sketch14.addGeometry(Part.LineSegment(V(6, 19, 0), V(6, 31, 0)), False)
sketch14.addGeometry(Part.LineSegment(V(6, 31, 0), V(-6, 31, 0)), False)
sketch14.addGeometry(Part.LineSegment(V(5, 20, 0), V(-5, 20, 0)), False)
sketch14.addGeometry(Part.LineSegment(V(-5, 20, 0), V(-5, 30, 0)), False)
sketch14.addGeometry(Part.LineSegment(V(-5, 30, 0), V(5, 30, 0)), False)
sketch14.addGeometry(Part.LineSegment(V(5, 30, 0), V(5, 20, 0)), False)
sketch14.addConstraint(Sketcher.Constraint("Coincident", 0, 2, 1, 1))
sketch14.addConstraint(Sketcher.Constraint("Coincident", 1, 2, 2, 1))
sketch14.addConstraint(Sketcher.Constraint("Coincident", 2, 2, 3, 1))
sketch14.addConstraint(Sketcher.Constraint("Coincident", 3, 2, 0, 1))
sketch14.addConstraint(Sketcher.Constraint("Coincident", 4, 2, 5, 1))
sketch14.addConstraint(Sketcher.Constraint("Coincident", 5, 2, 6, 1))
sketch14.addConstraint(Sketcher.Constraint("Coincident", 6, 2, 7, 1))
sketch14.addConstraint(Sketcher.Constraint("Coincident", 7, 2, 4, 1))
sketch14.addConstraint(Sketcher.Constraint("Vertical", 0))
sketch14.addConstraint(Sketcher.Constraint("Horizontal", 1))
sketch14.addConstraint(Sketcher.Constraint("Vertical", 2))
sketch14.addConstraint(Sketcher.Constraint("Horizontal", 3))
sketch14.addConstraint(Sketcher.Constraint("Horizontal", 4))
sketch14.addConstraint(Sketcher.Constraint("Vertical", 5))
sketch14.addConstraint(Sketcher.Constraint("Horizontal", 6))
sketch14.addConstraint(Sketcher.Constraint("Vertical", 7))
sketch14.addConstraint(Sketcher.Constraint("Equal", 3, 0))
sketch14.addConstraint(Sketcher.Constraint("Equal", 6, 5))
sketch14.addConstraint(Sketcher.Constraint("DistanceX", 1, 1, 1, 2, 12.0))
sketch14.addConstraint(Sketcher.Constraint("DistanceX", 4, 2, 4, 1, 10.0))
sketch14.addConstraint(Sketcher.Constraint("DistanceX", 0, 2, -1, 1, 6.0))
sketch14.addConstraint(Sketcher.Constraint("DistanceY", -1, 1, 0, 2, 19.0))
sketch14.addConstraint(Sketcher.Constraint("DistanceX", 4, 2, -1, 1, 5.0))
sketch14.addConstraint(Sketcher.Constraint("DistanceY", -1, 1, 4, 2, 20.0))
pad8 = body.newObject("PartDesign::Pad", "Pad007")
pad8.Profile = sketch14
pad8.Length = 15

sketch15 = body.newObject("Sketcher::SketchObject", "Sketch014")
sketch15.AttachmentSupport = (doc.getObject("YZ_Plane"), [""])
sketch15.MapMode = "FlatFace"
sketch15.AttachmentOffset = App.Placement(V(0, 0, -25), App.Rotation())
sketch15.addGeometry(Part.LineSegment(V(6, 31, 0), V(6, 19, 0)), False)
sketch15.addGeometry(Part.LineSegment(V(6, 19, 0), V(-6, 19, 0)), False)
sketch15.addGeometry(Part.LineSegment(V(-6, 19, 0), V(-6, 31, 0)), False)
sketch15.addGeometry(Part.LineSegment(V(-6, 31, 0), V(6, 31, 0)), False)
sketch15.addGeometry(Part.LineSegment(V(-5, 20, 0), V(5, 20, 0)), False)
sketch15.addGeometry(Part.LineSegment(V(5, 20, 0), V(5, 30, 0)), False)
sketch15.addGeometry(Part.LineSegment(V(5, 30, 0), V(-5, 30, 0)), False)
sketch15.addGeometry(Part.LineSegment(V(-5, 30, 0), V(-5, 20, 0)), False)
sketch15.addConstraint(Sketcher.Constraint("Coincident", 0, 2, 1, 1))
sketch15.addConstraint(Sketcher.Constraint("Coincident", 1, 2, 2, 1))
sketch15.addConstraint(Sketcher.Constraint("Coincident", 2, 2, 3, 1))
sketch15.addConstraint(Sketcher.Constraint("Coincident", 3, 2, 0, 1))
sketch15.addConstraint(Sketcher.Constraint("Coincident", 4, 2, 5, 1))
sketch15.addConstraint(Sketcher.Constraint("Coincident", 5, 2, 6, 1))
sketch15.addConstraint(Sketcher.Constraint("Coincident", 6, 2, 7, 1))
sketch15.addConstraint(Sketcher.Constraint("Coincident", 7, 2, 4, 1))
sketch15.addConstraint(Sketcher.Constraint("Vertical", 0))
sketch15.addConstraint(Sketcher.Constraint("Horizontal", 1))
sketch15.addConstraint(Sketcher.Constraint("Vertical", 2))
sketch15.addConstraint(Sketcher.Constraint("Horizontal", 3))
sketch15.addConstraint(Sketcher.Constraint("Horizontal", 4))
sketch15.addConstraint(Sketcher.Constraint("Vertical", 5))
sketch15.addConstraint(Sketcher.Constraint("Horizontal", 6))
sketch15.addConstraint(Sketcher.Constraint("Vertical", 7))
sketch15.addConstraint(Sketcher.Constraint("Equal", 3, 0))
sketch15.addConstraint(Sketcher.Constraint("Equal", 6, 5))
sketch15.addConstraint(Sketcher.Constraint("DistanceX", 1, 2, 1, 1, 12.0))
sketch15.addConstraint(Sketcher.Constraint("DistanceX", 4, 1, 4, 2, 10.0))
sketch15.addConstraint(Sketcher.Constraint("DistanceX", -1, 1, 0, 2, 6.0))
sketch15.addConstraint(Sketcher.Constraint("DistanceY", -1, 1, 0, 2, 19.0))
sketch15.addConstraint(Sketcher.Constraint("DistanceX", -1, 1, 4, 2, 5.0))
sketch15.addConstraint(Sketcher.Constraint("DistanceY", -1, 1, 4, 2, 20.0))
pad9 = body.newObject("PartDesign::Pad", "Pad008")
pad9.Profile = sketch15
pad9.Length = 15
pad9.Reversed = True
body2 = doc.addObject("PartDesign::Body", "Body001")

sketch16 = body2.newObject("Sketcher::SketchObject", "Sketch015")
sketch16.AttachmentSupport = (doc.getObject("XY_Plane001"), [""])
sketch16.MapMode = "FlatFace"
sketch16.addGeometry(Part.LineSegment(V(-6, 6, 0), V(-6, -6, 0)), False)
sketch16.addGeometry(Part.LineSegment(V(-6, -6, 0), V(6, -6, 0)), False)
sketch16.addGeometry(Part.LineSegment(V(6, -6, 0), V(6, 6, 0)), False)
sketch16.addGeometry(Part.LineSegment(V(6, 6, 0), V(-6, 6, 0)), False)
sketch16.addConstraint(Sketcher.Constraint("Coincident", 0, 2, 1, 1))
sketch16.addConstraint(Sketcher.Constraint("Coincident", 1, 2, 2, 1))
sketch16.addConstraint(Sketcher.Constraint("Coincident", 2, 2, 3, 1))
sketch16.addConstraint(Sketcher.Constraint("Coincident", 3, 2, 0, 1))
sketch16.addConstraint(Sketcher.Constraint("Vertical", 0))
sketch16.addConstraint(Sketcher.Constraint("Horizontal", 1))
sketch16.addConstraint(Sketcher.Constraint("Vertical", 2))
sketch16.addConstraint(Sketcher.Constraint("Horizontal", 3))
sketch16.addConstraint(Sketcher.Constraint("Symmetric", 0, 2, 2, 2, -1, 1))
sketch16.addConstraint(Sketcher.Constraint("Equal", 3, 0))
sketch16.addConstraint(Sketcher.Constraint("DistanceX", 1, 1, 1, 2, 11.0))
pad10 = body2.newObject("PartDesign::Pad", "Pad009")
pad10.Profile = sketch16
pad10.Length = 1

doc.recompute()
